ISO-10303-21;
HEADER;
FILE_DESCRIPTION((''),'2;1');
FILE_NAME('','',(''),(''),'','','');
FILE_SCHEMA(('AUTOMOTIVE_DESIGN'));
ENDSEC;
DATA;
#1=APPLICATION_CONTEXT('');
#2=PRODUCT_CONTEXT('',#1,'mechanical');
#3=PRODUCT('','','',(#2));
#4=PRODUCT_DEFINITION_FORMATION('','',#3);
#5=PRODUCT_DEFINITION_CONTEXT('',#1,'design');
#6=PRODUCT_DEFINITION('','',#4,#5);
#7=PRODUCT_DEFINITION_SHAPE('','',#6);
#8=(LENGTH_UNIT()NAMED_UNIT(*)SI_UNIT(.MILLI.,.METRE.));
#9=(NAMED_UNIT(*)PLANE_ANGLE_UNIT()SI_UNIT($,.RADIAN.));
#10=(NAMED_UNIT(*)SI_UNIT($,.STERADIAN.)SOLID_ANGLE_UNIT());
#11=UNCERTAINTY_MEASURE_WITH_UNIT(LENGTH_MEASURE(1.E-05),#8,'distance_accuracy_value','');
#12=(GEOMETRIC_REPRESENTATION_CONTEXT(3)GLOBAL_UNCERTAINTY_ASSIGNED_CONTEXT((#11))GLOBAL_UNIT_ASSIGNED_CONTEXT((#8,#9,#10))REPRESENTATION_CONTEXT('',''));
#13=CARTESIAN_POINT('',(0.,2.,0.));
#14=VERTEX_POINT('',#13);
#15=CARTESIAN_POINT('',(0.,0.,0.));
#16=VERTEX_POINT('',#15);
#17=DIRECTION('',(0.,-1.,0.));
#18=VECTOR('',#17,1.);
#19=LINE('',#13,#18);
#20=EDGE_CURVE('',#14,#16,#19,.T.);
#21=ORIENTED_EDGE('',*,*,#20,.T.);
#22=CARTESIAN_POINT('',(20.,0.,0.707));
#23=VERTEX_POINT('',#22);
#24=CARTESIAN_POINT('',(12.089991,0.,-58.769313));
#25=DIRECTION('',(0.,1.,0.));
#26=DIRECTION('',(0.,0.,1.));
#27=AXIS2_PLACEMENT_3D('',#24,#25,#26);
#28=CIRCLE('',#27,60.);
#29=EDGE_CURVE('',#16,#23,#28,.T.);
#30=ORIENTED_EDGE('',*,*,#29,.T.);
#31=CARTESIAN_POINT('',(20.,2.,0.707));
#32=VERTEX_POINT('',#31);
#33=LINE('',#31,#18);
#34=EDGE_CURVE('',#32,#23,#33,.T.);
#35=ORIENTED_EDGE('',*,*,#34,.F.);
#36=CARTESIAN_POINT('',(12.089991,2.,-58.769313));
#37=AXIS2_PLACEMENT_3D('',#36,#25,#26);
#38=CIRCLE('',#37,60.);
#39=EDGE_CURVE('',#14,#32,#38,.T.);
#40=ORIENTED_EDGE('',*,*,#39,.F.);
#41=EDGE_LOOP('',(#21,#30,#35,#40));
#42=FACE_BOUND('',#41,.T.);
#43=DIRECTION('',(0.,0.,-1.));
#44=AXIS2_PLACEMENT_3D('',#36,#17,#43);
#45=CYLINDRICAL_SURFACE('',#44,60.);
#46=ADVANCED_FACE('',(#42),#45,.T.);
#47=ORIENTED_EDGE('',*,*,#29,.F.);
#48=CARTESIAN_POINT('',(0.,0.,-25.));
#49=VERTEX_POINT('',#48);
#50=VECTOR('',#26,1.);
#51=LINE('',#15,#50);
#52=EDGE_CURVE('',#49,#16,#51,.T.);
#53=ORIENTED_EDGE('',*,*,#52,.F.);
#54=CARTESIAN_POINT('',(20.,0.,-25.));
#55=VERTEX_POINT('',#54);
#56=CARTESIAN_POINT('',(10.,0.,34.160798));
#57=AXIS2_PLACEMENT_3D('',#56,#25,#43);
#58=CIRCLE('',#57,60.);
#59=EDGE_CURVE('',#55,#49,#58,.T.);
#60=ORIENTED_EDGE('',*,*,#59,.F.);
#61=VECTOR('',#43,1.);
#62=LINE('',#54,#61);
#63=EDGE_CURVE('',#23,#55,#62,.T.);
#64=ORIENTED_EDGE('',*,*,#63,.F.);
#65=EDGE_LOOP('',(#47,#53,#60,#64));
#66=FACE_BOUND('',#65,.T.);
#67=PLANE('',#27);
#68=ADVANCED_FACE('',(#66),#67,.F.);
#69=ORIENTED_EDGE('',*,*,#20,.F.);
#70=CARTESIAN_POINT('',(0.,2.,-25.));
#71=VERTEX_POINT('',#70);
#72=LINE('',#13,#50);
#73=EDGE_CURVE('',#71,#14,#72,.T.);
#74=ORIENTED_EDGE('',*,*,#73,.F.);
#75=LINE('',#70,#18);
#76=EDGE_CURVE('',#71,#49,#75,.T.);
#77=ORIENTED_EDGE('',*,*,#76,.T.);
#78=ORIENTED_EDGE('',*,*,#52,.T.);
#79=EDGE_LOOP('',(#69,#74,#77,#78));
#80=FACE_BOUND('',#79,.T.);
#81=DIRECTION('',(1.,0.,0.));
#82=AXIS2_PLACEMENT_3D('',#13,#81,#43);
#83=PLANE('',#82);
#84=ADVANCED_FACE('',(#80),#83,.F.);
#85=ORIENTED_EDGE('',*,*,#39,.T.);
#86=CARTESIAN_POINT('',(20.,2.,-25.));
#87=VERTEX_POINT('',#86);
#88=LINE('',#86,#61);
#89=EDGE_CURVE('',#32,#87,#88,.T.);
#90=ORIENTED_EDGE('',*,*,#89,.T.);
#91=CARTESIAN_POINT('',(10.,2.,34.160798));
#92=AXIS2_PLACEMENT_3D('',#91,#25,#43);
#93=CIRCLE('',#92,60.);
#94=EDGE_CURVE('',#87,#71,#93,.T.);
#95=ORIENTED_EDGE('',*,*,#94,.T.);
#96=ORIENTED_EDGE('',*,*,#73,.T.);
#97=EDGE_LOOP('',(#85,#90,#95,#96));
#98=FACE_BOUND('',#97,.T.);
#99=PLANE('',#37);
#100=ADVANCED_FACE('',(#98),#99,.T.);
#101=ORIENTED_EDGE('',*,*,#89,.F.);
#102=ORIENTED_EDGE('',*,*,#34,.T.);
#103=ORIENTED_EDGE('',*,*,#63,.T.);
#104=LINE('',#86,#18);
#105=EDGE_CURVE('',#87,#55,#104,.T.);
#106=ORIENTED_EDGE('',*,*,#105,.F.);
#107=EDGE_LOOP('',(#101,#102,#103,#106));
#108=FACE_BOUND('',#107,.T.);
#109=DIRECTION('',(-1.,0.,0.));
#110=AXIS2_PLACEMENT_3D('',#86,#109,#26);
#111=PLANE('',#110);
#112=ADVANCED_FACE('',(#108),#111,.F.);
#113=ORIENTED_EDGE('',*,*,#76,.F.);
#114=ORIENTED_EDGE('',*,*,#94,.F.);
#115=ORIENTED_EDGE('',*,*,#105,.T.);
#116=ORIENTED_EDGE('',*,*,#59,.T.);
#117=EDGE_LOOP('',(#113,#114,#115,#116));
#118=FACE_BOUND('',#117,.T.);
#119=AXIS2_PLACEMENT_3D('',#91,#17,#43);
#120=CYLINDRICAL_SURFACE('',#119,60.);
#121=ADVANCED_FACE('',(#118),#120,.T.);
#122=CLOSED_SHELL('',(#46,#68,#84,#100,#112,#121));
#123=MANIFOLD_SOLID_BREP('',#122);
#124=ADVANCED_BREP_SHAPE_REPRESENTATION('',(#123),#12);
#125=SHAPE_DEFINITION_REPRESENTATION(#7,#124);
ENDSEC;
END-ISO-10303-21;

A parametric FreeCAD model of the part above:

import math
import FreeCAD as App
import Part
import Sketcher

doc = App.newDocument("Part")
body = doc.addObject("PartDesign::Body", "Body")

# Sketch on XZ plane
sketch1 = doc.addObject("Sketcher::SketchObject", "Sketch")
body.addObject(sketch1)
sketch1.AttachmentSupport = (doc.XZ_Plane, [""])
sketch1.MapMode = "FlatFace"
sketch1.addGeometry(Part.LineSegment(App.Vector(0, -25, 0), App.Vector(0, 0, 0)), False)
sketch1.addGeometry(Part.ArcOfCircle(Part.Circle(App.Vector(12, -59, 0), App.Vector(0, 0, 1), 60), math.radians(82.42), math.radians(101.62)), False)
sketch1.addGeometry(Part.LineSegment(App.Vector(20, 1, 0), App.Vector(20, -25, 0)), False)
sketch1.addGeometry(Part.ArcOfCircle(Part.Circle(App.Vector(10, 34, 0), App.Vector(0, 0, 1), 60), math.radians(-99.59), math.radians(-80.41)), False)
sketch1.addConstraint(Sketcher.Constraint("Coincident", 0, 2, 1, 2))
sketch1.addConstraint(Sketcher.Constraint("Coincident", 1, 1, 2, 1))
sketch1.addConstraint(Sketcher.Constraint("Coincident", 2, 2, 3, 2))
sketch1.addConstraint(Sketcher.Constraint("Coincident", 3, 1, 0, 1))
sketch1.addConstraint(Sketcher.Constraint("Vertical", 0))
sketch1.addConstraint(Sketcher.Constraint("Vertical", 2))
sketch1.addConstraint(Sketcher.Constraint("Coincident", 0, 2, -1, 1))
sketch1.addConstraint(Sketcher.Constraint("Equal", 1, 3))
sketch1.addConstraint(Sketcher.Constraint("Horizontal", 2, 2, 3, 1))
sketch1.addConstraint(Sketcher.Constraint("Radius", 1, 60.0))
sketch1.addConstraint(Sketcher.Constraint("DistanceY", 0, 1, 0, 2, 25.0))
sketch1.addConstraint(Sketcher.Constraint("DistanceX", -1, 1, 3, 3, 10.0))
sketch1.addConstraint(Sketcher.Constraint("DistanceY", 2, 2, 2, 1, 25.707))
pad1 = doc.addObject("PartDesign::Pad", "Pad")
body.addObject(pad1)
pad1.Profile = sketch1
pad1.Length = 2
pad1.Reversed = True

doc.recompute()
